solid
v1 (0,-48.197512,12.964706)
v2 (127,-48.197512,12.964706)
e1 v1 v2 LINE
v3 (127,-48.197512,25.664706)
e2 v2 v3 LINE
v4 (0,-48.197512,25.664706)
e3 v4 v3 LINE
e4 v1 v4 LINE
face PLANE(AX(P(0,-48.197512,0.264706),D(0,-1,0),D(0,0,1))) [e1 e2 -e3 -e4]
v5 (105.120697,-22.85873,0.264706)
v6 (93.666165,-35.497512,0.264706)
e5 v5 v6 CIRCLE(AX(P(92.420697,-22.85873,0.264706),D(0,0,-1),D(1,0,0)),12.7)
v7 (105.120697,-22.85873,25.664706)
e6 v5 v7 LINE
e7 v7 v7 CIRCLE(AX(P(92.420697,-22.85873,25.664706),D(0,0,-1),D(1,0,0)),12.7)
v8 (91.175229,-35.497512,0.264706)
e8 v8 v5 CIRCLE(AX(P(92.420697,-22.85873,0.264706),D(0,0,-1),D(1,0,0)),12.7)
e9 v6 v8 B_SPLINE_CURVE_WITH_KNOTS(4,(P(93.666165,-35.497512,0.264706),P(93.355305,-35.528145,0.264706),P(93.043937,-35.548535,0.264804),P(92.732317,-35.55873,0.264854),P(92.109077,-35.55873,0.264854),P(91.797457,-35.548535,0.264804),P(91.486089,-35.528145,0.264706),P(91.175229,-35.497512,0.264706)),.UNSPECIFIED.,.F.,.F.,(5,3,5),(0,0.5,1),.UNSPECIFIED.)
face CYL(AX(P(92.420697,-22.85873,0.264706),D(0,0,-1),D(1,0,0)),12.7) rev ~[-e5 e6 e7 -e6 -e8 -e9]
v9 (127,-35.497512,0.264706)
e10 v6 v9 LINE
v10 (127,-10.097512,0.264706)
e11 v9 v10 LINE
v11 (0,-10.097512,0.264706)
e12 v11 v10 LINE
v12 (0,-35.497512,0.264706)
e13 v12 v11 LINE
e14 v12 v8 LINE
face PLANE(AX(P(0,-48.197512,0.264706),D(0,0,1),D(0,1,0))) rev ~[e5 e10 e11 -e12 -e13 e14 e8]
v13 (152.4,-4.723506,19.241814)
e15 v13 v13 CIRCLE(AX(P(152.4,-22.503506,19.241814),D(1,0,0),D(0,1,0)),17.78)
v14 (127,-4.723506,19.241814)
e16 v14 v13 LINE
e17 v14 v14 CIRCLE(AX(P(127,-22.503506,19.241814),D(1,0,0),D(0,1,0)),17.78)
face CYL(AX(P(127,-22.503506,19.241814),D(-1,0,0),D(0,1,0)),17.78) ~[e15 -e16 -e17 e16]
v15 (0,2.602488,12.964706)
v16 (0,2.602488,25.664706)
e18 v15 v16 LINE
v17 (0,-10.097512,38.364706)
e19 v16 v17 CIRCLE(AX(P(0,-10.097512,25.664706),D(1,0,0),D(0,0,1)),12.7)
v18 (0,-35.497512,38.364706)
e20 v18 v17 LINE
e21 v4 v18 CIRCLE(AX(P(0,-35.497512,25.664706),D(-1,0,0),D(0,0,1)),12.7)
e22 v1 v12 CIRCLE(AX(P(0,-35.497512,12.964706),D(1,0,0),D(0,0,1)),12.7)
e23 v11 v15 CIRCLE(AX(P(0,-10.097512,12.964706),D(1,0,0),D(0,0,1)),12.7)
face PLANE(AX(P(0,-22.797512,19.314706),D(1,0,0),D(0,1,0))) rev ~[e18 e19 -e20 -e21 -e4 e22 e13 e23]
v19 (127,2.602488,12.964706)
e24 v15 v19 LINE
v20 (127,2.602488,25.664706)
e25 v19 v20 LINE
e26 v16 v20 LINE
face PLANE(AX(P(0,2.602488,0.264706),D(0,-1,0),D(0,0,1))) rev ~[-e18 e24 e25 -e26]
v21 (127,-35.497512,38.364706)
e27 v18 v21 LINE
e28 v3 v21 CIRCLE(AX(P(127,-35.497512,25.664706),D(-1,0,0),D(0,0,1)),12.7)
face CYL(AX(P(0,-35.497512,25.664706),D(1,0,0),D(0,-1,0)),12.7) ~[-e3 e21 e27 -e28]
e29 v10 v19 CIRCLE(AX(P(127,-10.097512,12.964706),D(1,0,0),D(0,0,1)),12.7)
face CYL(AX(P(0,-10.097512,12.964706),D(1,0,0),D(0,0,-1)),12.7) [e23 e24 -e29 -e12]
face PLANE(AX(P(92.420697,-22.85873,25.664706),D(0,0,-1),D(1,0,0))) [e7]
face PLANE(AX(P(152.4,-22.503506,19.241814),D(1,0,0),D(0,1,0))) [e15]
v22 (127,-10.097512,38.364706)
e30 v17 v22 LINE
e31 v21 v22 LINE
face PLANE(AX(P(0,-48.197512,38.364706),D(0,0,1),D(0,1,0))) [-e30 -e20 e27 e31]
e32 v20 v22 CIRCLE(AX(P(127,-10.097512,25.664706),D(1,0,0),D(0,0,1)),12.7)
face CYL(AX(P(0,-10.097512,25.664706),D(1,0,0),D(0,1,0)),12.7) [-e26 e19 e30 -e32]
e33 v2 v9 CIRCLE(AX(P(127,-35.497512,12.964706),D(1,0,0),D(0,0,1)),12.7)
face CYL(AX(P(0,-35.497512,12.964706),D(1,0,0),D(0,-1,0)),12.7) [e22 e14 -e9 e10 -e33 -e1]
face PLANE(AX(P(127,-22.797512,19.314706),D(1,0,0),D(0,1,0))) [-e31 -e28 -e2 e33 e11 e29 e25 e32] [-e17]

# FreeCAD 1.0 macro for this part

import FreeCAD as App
import Part
import Sketcher

V = App.Vector
Q = App.Units.Quantity


def edges_at(feature, points):
    """Names of the edges that pass closest to the given points."""
    edges = feature.Shape.Edges
    near = lambda p: min(range(len(edges)), key=lambda i: edges[i].distToShape(Part.Vertex(*p))[0])
    return sorted({f"Edge{near(p) + 1}" for p in points})


def add_polygon(sketch, points):
    """Adds a closed chain of lines whose ends are joined by coincident constraints."""
    first, n = sketch.GeometryCount, len(points)
    for a, b in zip(points, points[1:] + points[:1]):
        sketch.addGeometry(Part.LineSegment(App.Vector(*a, 0), App.Vector(*b, 0)), False)
    for i in range(n):
        sketch.addConstraint(Sketcher.Constraint("Coincident", first + i, 2, first + (i + 1) % n, 1))

doc = App.newDocument("Part")
params = doc.addObject("Spreadsheet::Sheet", "Params")
for row, (alias, value) in enumerate([
    ("sketch1_width", "2 in"),
    ("sketch1_height", "1.5 in"),
    ("pad1_length", "5 in"),
    ("fillet_radius", "0.5 in"),
    ("sketch2_diameter", "1 in"),
    ("pocket1_length", "1 in"),
    ("sketch3_diameter", "1.4 in"),
    ("pad2_length", "1 in"),
], start=1):
    params.set(f"A{row}", alias)
    params.set(f"B{row}", "=" + value)
    params.setAlias(f"B{row}", alias)

body = doc.addObject("PartDesign::Body", "Body")

sketch1 = doc.addObject("Sketcher::SketchObject", "Sketch")
body.addObject(sketch1)
sketch1.AttachmentSupport = (doc.YZ_Plane, [""])
sketch1.MapMode = "FlatFace"
add_polygon(sketch1, [(-48.197512, 38.364706), (-48.197512, 0.264706), (2.602488, 0.264706), (2.602488, 38.364706)])
sketch1.addConstraint([
    Sketcher.Constraint("Vertical", 0),
    Sketcher.Constraint("Horizontal", 1),
    Sketcher.Constraint("Vertical", 2),
    Sketcher.Constraint("Horizontal", 3),
    Sketcher.Constraint("DistanceX", 1, 1, 1, 2, Q("2 in")),
    Sketcher.Constraint("DistanceY", 0, 2, 0, 1, Q("1.5 in")),
    Sketcher.Constraint("DistanceX", -1, 1, 1, 2, 2.602488),
    Sketcher.Constraint("DistanceY", -1, 1, 0, 2, 0.264706),
])
sketch1.setExpression("Constraints[8]", "Params.sketch1_width")
sketch1.setExpression("Constraints[9]", "Params.sketch1_height")
pad1 = doc.addObject("PartDesign::Pad", "Pad")
body.addObject(pad1)
pad1.Profile = sketch1
pad1.setExpression("Length", "Params.pad1_length")
doc.recompute()

fillet = doc.addObject("PartDesign::Fillet", "Fillet")
body.addObject(fillet)
fillet.Base = (pad1, edges_at(pad1, [
    (63.5, -48.198, 38.365),
    (63.5, 2.602, 38.365),
    (63.5, -48.198, 0.265),
    (63.5, 2.602, 0.265),
]))
fillet.setExpression("Radius", "Params.fillet_radius")

sketch2 = doc.addObject("Sketcher::SketchObject", "Sketch001")
body.addObject(sketch2)
sketch2.AttachmentSupport = (doc.XY_Plane, [""])
sketch2.MapMode = "FlatFace"
sketch2.AttachmentOffset = App.Placement(V(0, 0, 0.264706), App.Rotation())
sketch2.addGeometry(Part.Circle(V(92.420697, -22.85873, 0), V(0, 0, 1), 12.7), False)
sketch2.addConstraint([
    Sketcher.Constraint("Diameter", 0, Q("1 in")),
    Sketcher.Constraint("DistanceY", 0, 3, -1, 1, 22.85873),
    Sketcher.Constraint("DistanceX", -1, 1, 0, 3, 92.420697),
])
sketch2.setExpression("Constraints[0]", "Params.sketch2_diameter")
pocket1 = doc.addObject("PartDesign::Pocket", "Pocket")
body.addObject(pocket1)
pocket1.Profile = sketch2
pocket1.setExpression("Length", "Params.pocket1_length")
pocket1.Reversed = True

sketch3 = doc.addObject("Sketcher::SketchObject", "Sketch002")
body.addObject(sketch3)
sketch3.AttachmentSupport = (doc.YZ_Plane, [""])
sketch3.MapMode = "FlatFace"
sketch3.AttachmentOffset = App.Placement(V(0, 0, 5 * 25.4), App.Rotation())
sketch3.addGeometry(Part.Circle(V(-22.503506, 19.241814, 0), V(0, 0, 1), 17.78), False)
sketch3.addConstraint([
    Sketcher.Constraint("Diameter", 0, Q("1.4 in")),
    Sketcher.Constraint("DistanceX", 0, 3, -1, 1, 22.503506),
    Sketcher.Constraint("DistanceY", -1, 1, 0, 3, 19.241814),
])
sketch3.setExpression("Constraints[0]", "Params.sketch3_diameter")
pad2 = doc.addObject("PartDesign::Pad", "Pad001")
body.addObject(pad2)
pad2.Profile = sketch3
pad2.setExpression("Length", "Params.pad2_length")

doc.recompute()
